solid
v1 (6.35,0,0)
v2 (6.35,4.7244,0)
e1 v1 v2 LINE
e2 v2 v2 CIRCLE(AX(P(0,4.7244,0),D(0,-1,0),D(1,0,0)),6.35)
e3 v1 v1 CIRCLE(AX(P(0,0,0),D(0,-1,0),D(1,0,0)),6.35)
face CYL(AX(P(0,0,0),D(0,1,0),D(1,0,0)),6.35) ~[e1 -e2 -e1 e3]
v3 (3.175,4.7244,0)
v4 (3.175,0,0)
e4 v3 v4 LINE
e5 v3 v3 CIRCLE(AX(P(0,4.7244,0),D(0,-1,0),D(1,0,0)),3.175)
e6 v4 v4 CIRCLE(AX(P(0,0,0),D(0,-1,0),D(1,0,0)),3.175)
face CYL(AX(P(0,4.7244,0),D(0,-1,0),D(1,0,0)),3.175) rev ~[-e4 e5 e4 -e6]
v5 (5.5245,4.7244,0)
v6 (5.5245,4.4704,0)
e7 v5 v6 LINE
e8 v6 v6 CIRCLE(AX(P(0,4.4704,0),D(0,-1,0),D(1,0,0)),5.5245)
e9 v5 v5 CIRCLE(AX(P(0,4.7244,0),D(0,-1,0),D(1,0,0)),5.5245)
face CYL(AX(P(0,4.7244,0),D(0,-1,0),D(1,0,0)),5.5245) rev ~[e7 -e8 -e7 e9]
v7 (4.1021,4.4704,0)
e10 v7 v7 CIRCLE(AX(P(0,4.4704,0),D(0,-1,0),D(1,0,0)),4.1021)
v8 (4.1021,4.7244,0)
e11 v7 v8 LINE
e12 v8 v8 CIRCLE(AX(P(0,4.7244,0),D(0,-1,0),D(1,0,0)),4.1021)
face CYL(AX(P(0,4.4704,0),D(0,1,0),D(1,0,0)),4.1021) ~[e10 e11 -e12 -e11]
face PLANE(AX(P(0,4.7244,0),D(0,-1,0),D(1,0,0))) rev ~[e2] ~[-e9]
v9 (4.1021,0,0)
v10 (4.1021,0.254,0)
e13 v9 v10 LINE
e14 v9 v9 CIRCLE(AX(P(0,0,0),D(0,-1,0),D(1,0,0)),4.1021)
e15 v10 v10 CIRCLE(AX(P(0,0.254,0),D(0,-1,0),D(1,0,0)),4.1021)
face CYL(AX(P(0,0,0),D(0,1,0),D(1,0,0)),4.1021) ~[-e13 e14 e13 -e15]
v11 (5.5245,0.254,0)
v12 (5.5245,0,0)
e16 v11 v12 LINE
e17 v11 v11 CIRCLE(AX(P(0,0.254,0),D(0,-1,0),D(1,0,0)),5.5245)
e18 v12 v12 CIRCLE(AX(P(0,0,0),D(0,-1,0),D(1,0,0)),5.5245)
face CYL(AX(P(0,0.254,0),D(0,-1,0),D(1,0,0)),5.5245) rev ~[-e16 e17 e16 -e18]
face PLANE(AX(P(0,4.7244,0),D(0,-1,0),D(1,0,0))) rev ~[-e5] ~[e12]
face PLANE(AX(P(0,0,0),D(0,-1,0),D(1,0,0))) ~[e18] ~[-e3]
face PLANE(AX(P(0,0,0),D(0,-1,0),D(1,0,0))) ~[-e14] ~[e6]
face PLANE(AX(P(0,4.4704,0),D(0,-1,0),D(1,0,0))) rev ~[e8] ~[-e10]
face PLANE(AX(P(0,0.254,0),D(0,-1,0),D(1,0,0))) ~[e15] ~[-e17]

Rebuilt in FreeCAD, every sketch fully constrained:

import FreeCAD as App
import Part
import Sketcher

V = App.Vector
Q = App.Units.Quantity


def add_polygon(sketch, points):
    """Adds a closed chain of lines whose ends are joined by coincident constraints."""
    first, n = sketch.GeometryCount, len(points)
    for a, b in zip(points, points[1:] + points[:1]):
        sketch.addGeometry(Part.LineSegment(App.Vector(*a, 0), App.Vector(*b, 0)), False)
    for i in range(n):
        sketch.addConstraint(Sketcher.Constraint("Coincident", first + i, 2, first + (i + 1) % n, 1))

doc = App.newDocument("Part")
body = doc.addObject("PartDesign::Body", "Body")

sketch1 = body.newObject("Sketcher::SketchObject", "Sketch")
sketch1.AttachmentSupport = (doc.getObject("XY_Plane"), [""])
sketch1.MapMode = "FlatFace"
add_polygon(sketch1, [(4.1, 4.72), (3.17, 4.72), (3.17, 0), (4.1, 0), (4.1, 0.25), (5.52, 0.25), (5.52, 0), (6.35, 0), (6.35, 4.72), (5.52, 4.72), (5.52, 4.47), (4.1, 4.47)])
sketch1.addConstraint(Sketcher.Constraint("Horizontal", 0))
sketch1.addConstraint(Sketcher.Constraint("Vertical", 1))
sketch1.addConstraint(Sketcher.Constraint("Horizontal", 2))
sketch1.addConstraint(Sketcher.Constraint("Vertical", 3))
sketch1.addConstraint(Sketcher.Constraint("Horizontal", 4))
sketch1.addConstraint(Sketcher.Constraint("Vertical", 5))
sketch1.addConstraint(Sketcher.Constraint("Horizontal", 6))
sketch1.addConstraint(Sketcher.Constraint("Vertical", 7))
sketch1.addConstraint(Sketcher.Constraint("Horizontal", 8))
sketch1.addConstraint(Sketcher.Constraint("Vertical", 9))
sketch1.addConstraint(Sketcher.Constraint("Horizontal", 10))
sketch1.addConstraint(Sketcher.Constraint("Vertical", 11))
sketch1.addConstraint(Sketcher.Constraint("PointOnObject", 1, 2, -1))
sketch1.addConstraint(Sketcher.Constraint("PointOnObject", 5, 2, -1))
sketch1.addConstraint(Sketcher.Constraint("Horizontal", 0, 2, 7, 2))
sketch1.addConstraint(Sketcher.Constraint("Vertical", 5, 2, 8, 2))
sketch1.addConstraint(Sketcher.Constraint("Vertical", 3, 2, 10, 2))
sketch1.addConstraint(Sketcher.Constraint("Equal", 5, 9))
sketch1.addConstraint(Sketcher.Constraint("DistanceY", 3, 1, 3, 2, Q("0.01 in")))
sketch1.addConstraint(Sketcher.Constraint("DistanceX", 4, 1, 4, 2, Q("0.056 in")))
sketch1.addConstraint(Sketcher.Constraint("DistanceY", 1, 2, 1, 1, Q("0.186 in")))
sketch1.addConstraint(Sketcher.Constraint("DistanceX", -1, 1, 6, 2, Q("0.25 in")))
sketch1.addConstraint(Sketcher.Constraint("DistanceX", 0, 2, 0, 1, Q("0.0365 in")))
sketch1.addConstraint(Sketcher.Constraint("DistanceX", 6, 1, 6, 2, Q("0.0325 in")))
revolution = body.newObject("PartDesign::Revolution", "Revolution")
revolution.Profile = sketch1
revolution.ReferenceAxis = (sketch1, ["V_Axis"])
revolution.Angle = 360

doc.recompute()
